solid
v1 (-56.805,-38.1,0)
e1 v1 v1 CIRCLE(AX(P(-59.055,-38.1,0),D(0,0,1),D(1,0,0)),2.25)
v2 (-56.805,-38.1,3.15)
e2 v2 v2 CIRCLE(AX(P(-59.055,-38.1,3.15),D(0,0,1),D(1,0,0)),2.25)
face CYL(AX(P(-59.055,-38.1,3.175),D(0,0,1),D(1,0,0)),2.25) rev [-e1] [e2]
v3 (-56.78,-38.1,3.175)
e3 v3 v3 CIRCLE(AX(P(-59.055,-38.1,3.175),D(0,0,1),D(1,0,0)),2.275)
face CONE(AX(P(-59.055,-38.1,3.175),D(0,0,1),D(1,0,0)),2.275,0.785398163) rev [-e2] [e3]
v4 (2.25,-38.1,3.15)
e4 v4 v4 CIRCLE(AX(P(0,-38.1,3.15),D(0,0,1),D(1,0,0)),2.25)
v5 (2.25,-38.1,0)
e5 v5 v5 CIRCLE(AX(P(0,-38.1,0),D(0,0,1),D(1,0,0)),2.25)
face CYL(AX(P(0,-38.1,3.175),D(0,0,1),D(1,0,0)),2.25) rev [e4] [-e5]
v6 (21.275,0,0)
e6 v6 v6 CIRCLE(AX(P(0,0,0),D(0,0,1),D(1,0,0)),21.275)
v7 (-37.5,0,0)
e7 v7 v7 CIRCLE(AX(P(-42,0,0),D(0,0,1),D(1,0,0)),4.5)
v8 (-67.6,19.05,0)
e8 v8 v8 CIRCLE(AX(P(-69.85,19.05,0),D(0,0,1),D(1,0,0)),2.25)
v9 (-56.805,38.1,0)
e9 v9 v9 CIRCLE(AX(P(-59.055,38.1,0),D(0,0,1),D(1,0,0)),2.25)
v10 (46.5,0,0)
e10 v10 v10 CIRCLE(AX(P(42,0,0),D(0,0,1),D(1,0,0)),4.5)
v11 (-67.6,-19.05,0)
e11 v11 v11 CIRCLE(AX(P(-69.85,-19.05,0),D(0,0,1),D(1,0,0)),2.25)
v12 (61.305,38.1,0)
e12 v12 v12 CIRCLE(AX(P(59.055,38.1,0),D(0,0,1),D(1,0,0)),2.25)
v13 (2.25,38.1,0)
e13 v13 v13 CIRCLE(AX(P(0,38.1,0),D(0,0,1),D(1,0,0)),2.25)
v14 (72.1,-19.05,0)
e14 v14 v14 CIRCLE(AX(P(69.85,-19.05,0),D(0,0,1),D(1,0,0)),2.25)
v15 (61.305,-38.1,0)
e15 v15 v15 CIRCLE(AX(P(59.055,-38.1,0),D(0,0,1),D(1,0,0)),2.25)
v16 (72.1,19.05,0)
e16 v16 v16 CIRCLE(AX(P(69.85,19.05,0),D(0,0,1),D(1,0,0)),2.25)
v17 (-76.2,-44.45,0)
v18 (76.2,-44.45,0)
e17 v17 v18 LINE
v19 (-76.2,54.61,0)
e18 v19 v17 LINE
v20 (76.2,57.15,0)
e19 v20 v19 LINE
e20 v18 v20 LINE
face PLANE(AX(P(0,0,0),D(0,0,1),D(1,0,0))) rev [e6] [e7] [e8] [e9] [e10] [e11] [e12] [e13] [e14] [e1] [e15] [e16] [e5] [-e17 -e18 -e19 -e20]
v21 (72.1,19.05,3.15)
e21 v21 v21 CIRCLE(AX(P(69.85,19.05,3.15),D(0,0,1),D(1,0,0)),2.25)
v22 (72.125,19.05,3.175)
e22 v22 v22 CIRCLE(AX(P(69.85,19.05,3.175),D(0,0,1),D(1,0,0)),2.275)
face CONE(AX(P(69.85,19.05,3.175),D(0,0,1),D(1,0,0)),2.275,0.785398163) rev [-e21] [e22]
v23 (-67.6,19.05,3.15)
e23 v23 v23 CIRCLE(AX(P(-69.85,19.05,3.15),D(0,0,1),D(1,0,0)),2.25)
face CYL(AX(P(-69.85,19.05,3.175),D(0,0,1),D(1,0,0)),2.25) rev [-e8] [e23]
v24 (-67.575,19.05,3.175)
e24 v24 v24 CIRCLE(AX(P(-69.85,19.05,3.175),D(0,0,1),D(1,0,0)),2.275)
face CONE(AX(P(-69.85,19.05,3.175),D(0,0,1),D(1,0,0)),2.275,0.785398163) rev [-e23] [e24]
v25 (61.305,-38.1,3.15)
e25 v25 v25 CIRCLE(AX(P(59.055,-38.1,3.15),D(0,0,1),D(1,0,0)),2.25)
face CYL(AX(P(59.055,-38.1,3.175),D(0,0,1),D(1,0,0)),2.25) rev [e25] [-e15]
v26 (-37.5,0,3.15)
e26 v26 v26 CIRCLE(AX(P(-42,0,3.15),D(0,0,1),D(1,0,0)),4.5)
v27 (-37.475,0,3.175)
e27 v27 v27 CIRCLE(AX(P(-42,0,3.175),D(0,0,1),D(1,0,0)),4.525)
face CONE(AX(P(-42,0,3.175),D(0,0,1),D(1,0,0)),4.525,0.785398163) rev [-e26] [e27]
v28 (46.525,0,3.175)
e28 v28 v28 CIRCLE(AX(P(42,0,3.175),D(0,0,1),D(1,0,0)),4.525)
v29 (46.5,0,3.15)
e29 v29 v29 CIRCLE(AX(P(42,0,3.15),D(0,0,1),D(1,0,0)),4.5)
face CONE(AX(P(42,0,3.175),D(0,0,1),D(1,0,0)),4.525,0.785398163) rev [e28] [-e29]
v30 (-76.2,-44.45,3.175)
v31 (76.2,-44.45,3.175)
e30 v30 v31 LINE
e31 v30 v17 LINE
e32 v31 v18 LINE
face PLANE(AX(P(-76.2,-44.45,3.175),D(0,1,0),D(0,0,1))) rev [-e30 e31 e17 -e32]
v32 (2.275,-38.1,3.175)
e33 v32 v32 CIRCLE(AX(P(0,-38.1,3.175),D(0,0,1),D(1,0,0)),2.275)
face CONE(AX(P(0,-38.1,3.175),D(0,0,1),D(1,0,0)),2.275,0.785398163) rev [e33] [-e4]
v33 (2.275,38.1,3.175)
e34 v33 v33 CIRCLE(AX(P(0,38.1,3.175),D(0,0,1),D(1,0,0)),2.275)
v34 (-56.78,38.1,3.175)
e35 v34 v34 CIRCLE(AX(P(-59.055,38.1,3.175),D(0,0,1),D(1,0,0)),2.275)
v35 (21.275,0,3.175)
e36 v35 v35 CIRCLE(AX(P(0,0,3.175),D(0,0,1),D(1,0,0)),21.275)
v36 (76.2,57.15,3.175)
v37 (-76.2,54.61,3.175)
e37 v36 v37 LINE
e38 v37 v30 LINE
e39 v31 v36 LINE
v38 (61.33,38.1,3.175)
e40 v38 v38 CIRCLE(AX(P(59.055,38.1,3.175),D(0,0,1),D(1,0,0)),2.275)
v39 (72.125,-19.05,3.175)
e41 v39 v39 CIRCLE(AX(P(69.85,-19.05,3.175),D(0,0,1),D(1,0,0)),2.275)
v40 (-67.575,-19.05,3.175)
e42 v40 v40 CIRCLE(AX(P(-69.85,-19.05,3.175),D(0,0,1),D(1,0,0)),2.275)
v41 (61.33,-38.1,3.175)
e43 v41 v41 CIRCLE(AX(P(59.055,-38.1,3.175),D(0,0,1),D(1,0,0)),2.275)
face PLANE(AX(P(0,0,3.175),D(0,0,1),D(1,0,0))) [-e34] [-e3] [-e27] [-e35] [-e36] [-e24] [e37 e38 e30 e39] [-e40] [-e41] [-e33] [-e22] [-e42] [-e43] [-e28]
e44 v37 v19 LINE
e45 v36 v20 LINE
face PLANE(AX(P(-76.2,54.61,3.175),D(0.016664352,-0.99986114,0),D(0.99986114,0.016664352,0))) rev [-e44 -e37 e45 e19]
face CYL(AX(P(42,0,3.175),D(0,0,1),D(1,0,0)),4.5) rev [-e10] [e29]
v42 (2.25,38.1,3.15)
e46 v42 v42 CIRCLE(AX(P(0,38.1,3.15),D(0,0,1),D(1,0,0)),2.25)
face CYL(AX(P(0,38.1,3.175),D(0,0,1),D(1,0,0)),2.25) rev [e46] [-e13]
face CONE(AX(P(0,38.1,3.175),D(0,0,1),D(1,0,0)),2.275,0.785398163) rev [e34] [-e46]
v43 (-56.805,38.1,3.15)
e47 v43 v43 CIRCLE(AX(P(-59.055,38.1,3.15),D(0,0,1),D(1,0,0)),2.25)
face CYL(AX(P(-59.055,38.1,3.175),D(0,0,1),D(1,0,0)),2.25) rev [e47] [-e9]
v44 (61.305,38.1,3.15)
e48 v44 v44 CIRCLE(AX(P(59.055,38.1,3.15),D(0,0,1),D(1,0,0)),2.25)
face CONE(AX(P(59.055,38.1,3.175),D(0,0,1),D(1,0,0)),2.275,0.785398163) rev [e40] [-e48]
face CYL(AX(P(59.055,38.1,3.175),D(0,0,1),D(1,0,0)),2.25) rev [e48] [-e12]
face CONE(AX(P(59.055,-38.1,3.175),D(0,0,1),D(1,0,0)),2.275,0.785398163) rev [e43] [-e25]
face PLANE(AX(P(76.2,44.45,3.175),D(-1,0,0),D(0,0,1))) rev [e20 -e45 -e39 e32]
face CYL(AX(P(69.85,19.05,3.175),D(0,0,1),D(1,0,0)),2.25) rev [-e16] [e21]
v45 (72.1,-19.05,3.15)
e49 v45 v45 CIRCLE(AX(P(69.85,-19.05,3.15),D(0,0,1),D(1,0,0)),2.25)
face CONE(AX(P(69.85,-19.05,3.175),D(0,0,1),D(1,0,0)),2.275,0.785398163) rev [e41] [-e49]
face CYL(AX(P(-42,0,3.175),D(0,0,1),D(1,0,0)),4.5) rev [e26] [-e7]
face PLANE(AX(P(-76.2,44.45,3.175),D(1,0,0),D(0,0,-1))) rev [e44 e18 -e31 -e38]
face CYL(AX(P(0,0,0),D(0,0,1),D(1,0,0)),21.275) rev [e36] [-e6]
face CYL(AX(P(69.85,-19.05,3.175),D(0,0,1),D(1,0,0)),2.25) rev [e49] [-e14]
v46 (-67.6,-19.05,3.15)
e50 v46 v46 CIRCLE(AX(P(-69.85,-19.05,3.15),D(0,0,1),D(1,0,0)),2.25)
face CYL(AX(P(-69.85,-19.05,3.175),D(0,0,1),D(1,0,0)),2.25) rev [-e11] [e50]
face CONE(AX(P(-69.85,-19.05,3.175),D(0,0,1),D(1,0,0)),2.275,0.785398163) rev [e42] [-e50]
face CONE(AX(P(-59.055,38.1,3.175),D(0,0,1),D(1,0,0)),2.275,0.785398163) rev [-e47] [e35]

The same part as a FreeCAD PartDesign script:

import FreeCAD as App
import Part
import Sketcher
from FreeCAD import Vector
Q = App.Units.Quantity

doc = App.newDocument("Part")
body = doc.addObject("PartDesign::Body", "Body")

# Sketch on XY plane
sketch1 = doc.addObject("Sketcher::SketchObject", "Sketch")
body.addObject(sketch1)
sketch1.AttachmentSupport = (doc.XY_Plane, [""])
sketch1.MapMode = "FlatFace"
sketch1.addGeometry(Part.LineSegment(Vector(-76.2, 54.61, 0), Vector(-76.2, -44.45, 0)), False)
sketch1.addGeometry(Part.LineSegment(Vector(-76.2, -44.45, 0), Vector(76.2, -44.45, 0)), False)
sketch1.addGeometry(Part.LineSegment(Vector(76.2, -44.45, 0), Vector(76.2, 57.15, 0)), False)
sketch1.addGeometry(Part.LineSegment(Vector(76.2, 57.15, 0), Vector(-76.2, 54.61, 0)), False)
sketch1.addConstraint(Sketcher.Constraint("Coincident", 0, 2, 1, 1))
sketch1.addConstraint(Sketcher.Constraint("Coincident", 1, 2, 2, 1))
sketch1.addConstraint(Sketcher.Constraint("Coincident", 2, 2, 3, 1))
sketch1.addConstraint(Sketcher.Constraint("Coincident", 3, 2, 0, 1))
sketch1.addConstraint(Sketcher.Constraint("Vertical", 0))
sketch1.addConstraint(Sketcher.Constraint("Horizontal", 1))
sketch1.addConstraint(Sketcher.Constraint("Vertical", 2))
sketch1.addConstraint(Sketcher.Constraint("DistanceX", 1, 1, 1, 2, Q("6 in")))
sketch1.addConstraint(Sketcher.Constraint("DistanceY", 2, 1, 2, 2, Q("4 in")))
sketch1.addConstraint(Sketcher.Constraint("DistanceY", 0, 2, 0, 1, Q("3.9 in")))
sketch1.addConstraint(Sketcher.Constraint("DistanceX", 0, 2, -1, 1, Q("3 in")))
sketch1.addConstraint(Sketcher.Constraint("DistanceY", 0, 2, -1, 1, Q("1.75 in")))
pad1 = doc.addObject("PartDesign::Pad", "Pad")
body.addObject(pad1)
pad1.Profile = sketch1
pad1.Length = Q("0.125 in")

# Sketch on XY plane
sketch2 = doc.addObject("Sketcher::SketchObject", "Sketch001")
body.addObject(sketch2)
sketch2.AttachmentSupport = (doc.XY_Plane, [""])
sketch2.MapMode = "FlatFace"
sketch2.AttachmentOffset = App.Placement(Vector(0, 0, 0.125 * 25.4), App.Rotation())
sketch2.addGeometry(Part.Circle(Vector(-69.85, 19.05, 0), Vector(0, 0, 1), 2.25), False)
sketch2.addGeometry(Part.Circle(Vector(-59.055, 38.1, 0), Vector(0, 0, 1), 2.25), False)
sketch2.addGeometry(Part.Circle(Vector(0, 38.1, 0), Vector(0, 0, 1), 2.25), False)
sketch2.addGeometry(Part.Circle(Vector(59.055, 38.1, 0), Vector(0, 0, 1), 2.25), False)
sketch2.addGeometry(Part.Circle(Vector(69.85, 19.05, 0), Vector(0, 0, 1), 2.25), False)
sketch2.addGeometry(Part.Circle(Vector(69.85, -19.05, 0), Vector(0, 0, 1), 2.25), False)
sketch2.addGeometry(Part.Circle(Vector(59.055, -38.1, 0), Vector(0, 0, 1), 2.25), False)
sketch2.addGeometry(Part.Circle(Vector(0, -38.1, 0), Vector(0, 0, 1), 2.25), False)
sketch2.addGeometry(Part.Circle(Vector(-59.055, -38.1, 0), Vector(0, 0, 1), 2.25), False)
sketch2.addGeometry(Part.Circle(Vector(-69.85, -19.05, 0), Vector(0, 0, 1), 2.25), False)
sketch2.addConstraint(Sketcher.Constraint("Equal", 0, 1))
sketch2.addConstraint(Sketcher.Constraint("Equal", 1, 2))
sketch2.addConstraint(Sketcher.Constraint("Equal", 2, 3))
sketch2.addConstraint(Sketcher.Constraint("Equal", 3, 4))
sketch2.addConstraint(Sketcher.Constraint("Equal", 4, 5))
sketch2.addConstraint(Sketcher.Constraint("Equal", 5, 6))
sketch2.addConstraint(Sketcher.Constraint("Equal", 6, 7))
sketch2.addConstraint(Sketcher.Constraint("Equal", 7, 8))
sketch2.addConstraint(Sketcher.Constraint("Equal", 8, 9))
sketch2.addConstraint(Sketcher.Constraint("Symmetric", 0, 3, 5, 3, -1, 1))
sketch2.addConstraint(Sketcher.Constraint("Symmetric", 1, 3, 6, 3, -1, 1))
sketch2.addConstraint(Sketcher.Constraint("Symmetric", 2, 3, 7, 3, -1, 1))
sketch2.addConstraint(Sketcher.Constraint("Symmetric", 3, 3, 8, 3, -1, 1))
sketch2.addConstraint(Sketcher.Constraint("Symmetric", 4, 3, 9, 3, -1, 1))
sketch2.addConstraint(Sketcher.Constraint("Symmetric", 1, 3, 3, 3, -2))
sketch2.addConstraint(Sketcher.Constraint("Symmetric", 0, 3, 4, 3, -2))
sketch2.addConstraint(Sketcher.Constraint("PointOnObject", 2, 3, -2))
sketch2.addConstraint(Sketcher.Constraint("Horizontal", 1, 3, 2, 3))
sketch2.addConstraint(Sketcher.Constraint("DistanceY", 6, 3, 3, 3, Q("3 in")))
sketch2.addConstraint(Sketcher.Constraint("DistanceX", 0, 3, 4, 3, Q("5.5 in")))
sketch2.addConstraint(Sketcher.Constraint("DistanceY", 5, 3, 4, 3, Q("1.5 in")))
sketch2.addConstraint(Sketcher.Constraint("Diameter", 0, Q("4.5 mm")))
sketch2.addConstraint(Sketcher.Constraint("DistanceX", 1, 3, 3, 3, Q("4.65 in")))
doc.recompute()
hole = doc.addObject("PartDesign::Hole", "Hole")
body.addObject(hole)
hole.Profile = sketch2
hole.ThreadType = "None"
hole.Diameter = 4.5
hole.DepthType = "ThroughAll"
hole.HoleCutType = "Countersink"
hole.HoleCutDiameter = 4.55
hole.HoleCutCountersinkAngle = 90

# Sketch on YZ plane
sketch3 = doc.addObject("Sketcher::SketchObject", "Sketch002")
body.addObject(sketch3)
sketch3.AttachmentSupport = (doc.YZ_Plane, [""])
sketch3.MapMode = "FlatFace"
sketch3.AttachmentOffset = App.Placement(Vector(0, 0, -42), App.Rotation())
sketch3.addGeometry(Part.LineSegment(Vector(0, 0, 0), Vector(0, 3.175, 0)), False)
sketch3.addGeometry(Part.LineSegment(Vector(0, 3.175, 0), Vector(-4.525, 3.175, 0)), False)
sketch3.addGeometry(Part.LineSegment(Vector(-4.525, 3.175, 0), Vector(-4.5, 3.15, 0)), False)
sketch3.addGeometry(Part.LineSegment(Vector(-4.5, 3.15, 0), Vector(-4.5, 0, 0)), False)
sketch3.addGeometry(Part.LineSegment(Vector(-4.5, 0, 0), Vector(0, 0, 0)), False)
sketch3.addConstraint(Sketcher.Constraint("Coincident", 0, 2, 1, 1))
sketch3.addConstraint(Sketcher.Constraint("Coincident", 1, 2, 2, 1))
sketch3.addConstraint(Sketcher.Constraint("Coincident", 2, 2, 3, 1))
sketch3.addConstraint(Sketcher.Constraint("Coincident", 3, 2, 4, 1))
sketch3.addConstraint(Sketcher.Constraint("Coincident", 4, 2, 0, 1))
sketch3.addConstraint(Sketcher.Constraint("Vertical", 0))
sketch3.addConstraint(Sketcher.Constraint("Horizontal", 1))
sketch3.addConstraint(Sketcher.Constraint("Vertical", 3))
sketch3.addConstraint(Sketcher.Constraint("Horizontal", 4))
sketch3.addConstraint(Sketcher.Constraint("Coincident", 4, 2, -1, 1))
sketch3.addConstraint(Sketcher.Constraint("Angle", 2, Q("-45 deg")))
sketch3.addConstraint(Sketcher.Constraint("DistanceY", 0, 1, 0, 2, Q("0.125 in")))
sketch3.addConstraint(Sketcher.Constraint("DistanceX", 1, 2, 1, 1, Q("4.525 mm")))
sketch3.addConstraint(Sketcher.Constraint("DistanceX", 4, 1, 4, 2, Q("4.5 mm")))
groove = doc.addObject("PartDesign::Groove", "Groove")
body.addObject(groove)
groove.Profile = sketch3
groove.ReferenceAxis = (sketch3, ["V_Axis"])
groove.Angle = 360
doc.recompute()

linearpattern = doc.addObject("PartDesign::LinearPattern", "LinearPattern")
body.addObject(linearpattern)
linearpattern.Originals = [groove]
linearpattern.Direction = (doc.X_Axis, [""])
linearpattern.Mode = "offset"
linearpattern.Offset = 84
linearpattern.Occurrences = 2
body.Tip = linearpattern

# Sketch on XY plane
sketch4 = doc.addObject("Sketcher::SketchObject", "Sketch003")
body.addObject(sketch4)
sketch4.AttachmentSupport = (doc.XY_Plane, [""])
sketch4.MapMode = "FlatFace"
sketch4.AttachmentOffset = App.Placement(Vector(0, 0, 0.125 * 25.4), App.Rotation())
sketch4.addGeometry(Part.Circle(Vector(0, 0, 0), Vector(0, 0, 1), 21.275), False)
sketch4.addConstraint(Sketcher.Constraint("Coincident", 0, 3, -1, 1))
sketch4.addConstraint(Sketcher.Constraint("Diameter", 0, Q("42.55 mm")))
pocket1 = doc.addObject("PartDesign::Pocket", "Pocket")
body.addObject(pocket1)
pocket1.Profile = sketch4
pocket1.Type = "ThroughAll"

doc.recompute()
